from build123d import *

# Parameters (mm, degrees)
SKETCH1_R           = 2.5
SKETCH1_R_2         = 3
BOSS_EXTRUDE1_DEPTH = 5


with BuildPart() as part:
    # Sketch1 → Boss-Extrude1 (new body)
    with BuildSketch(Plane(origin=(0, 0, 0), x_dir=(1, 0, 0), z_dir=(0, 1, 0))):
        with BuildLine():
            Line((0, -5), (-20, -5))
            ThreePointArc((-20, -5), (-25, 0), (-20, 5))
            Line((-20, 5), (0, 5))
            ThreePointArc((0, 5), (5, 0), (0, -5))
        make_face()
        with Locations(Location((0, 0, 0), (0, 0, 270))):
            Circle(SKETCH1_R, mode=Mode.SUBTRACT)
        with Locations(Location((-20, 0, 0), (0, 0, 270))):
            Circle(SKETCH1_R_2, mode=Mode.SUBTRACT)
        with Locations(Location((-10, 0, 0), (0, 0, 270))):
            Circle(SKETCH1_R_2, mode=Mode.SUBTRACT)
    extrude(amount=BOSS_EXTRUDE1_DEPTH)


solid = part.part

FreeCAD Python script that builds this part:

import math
import FreeCAD as App
import Part
import Sketcher
from FreeCAD import Vector
Q = App.Units.Quantity

doc = App.newDocument("Part")
body = doc.addObject("PartDesign::Body", "Body")

# Sketch on XZ plane
sketch1 = body.newObject("Sketcher::SketchObject", "Sketch")
sketch1.AttachmentSupport = (doc.getObject("XZ_Plane"), [""])
sketch1.MapMode = "FlatFace"
sketch1.addGeometry([
    Part.LineSegment(Vector(-20, 5, 0), Vector(0, 5, 0)),  # 0
    Part.ArcOfCircle(Part.Circle(Vector(0, 0, 0), Vector(0, 0, 1), 5), math.radians(-90), math.radians(90)),  # 1
    Part.LineSegment(Vector(0, -5, 0), Vector(-20, -5, 0)),  # 2
    Part.ArcOfCircle(Part.Circle(Vector(-20, 0, 0), Vector(0, 0, 1), 5), math.radians(90), math.radians(270)),  # 3
    Part.Circle(Vector(0, 0, 0), Vector(0, 0, 1), 2.5),  # 4
    Part.Circle(Vector(-10, 0, 0), Vector(0, 0, 1), 3),  # 5
    Part.Circle(Vector(-20, 0, 0), Vector(0, 0, 1), 3),  # 6
], False)
sketch1.addConstraint([
    Sketcher.Constraint("Tangent", 0, 2, 1, 2),
    Sketcher.Constraint("Tangent", 1, 1, 2, 1),
    Sketcher.Constraint("Tangent", 2, 2, 3, 2),
    Sketcher.Constraint("Tangent", 3, 1, 0, 1),
    Sketcher.Constraint("Horizontal", 0),
    Sketcher.Constraint("Horizontal", 2),
    Sketcher.Constraint("Coincident", 1, 3, -1, 1),
    Sketcher.Constraint("Coincident", 4, 3, -1, 1),
    Sketcher.Constraint("Coincident", 6, 3, 3, 3),
    Sketcher.Constraint("Equal", 5, 6),
    Sketcher.Constraint("PointOnObject", 5, 3, -1),
    Sketcher.Constraint("Diameter", 4, Q("5 mm")),
    Sketcher.Constraint("Diameter", 5, Q("6 mm")),
    Sketcher.Constraint("Radius", 1, Q("5 mm")),
    Sketcher.Constraint("DistanceX", 0, 1, 0, 2, Q("20 mm")),
    Sketcher.Constraint("DistanceX", 5, 3, -1, 1, Q("10 mm")),
])
pad1 = body.newObject("PartDesign::Pad", "Pad")
pad1.Profile = sketch1
pad1.Length = 5
pad1.Reversed = True

doc.recompute()
